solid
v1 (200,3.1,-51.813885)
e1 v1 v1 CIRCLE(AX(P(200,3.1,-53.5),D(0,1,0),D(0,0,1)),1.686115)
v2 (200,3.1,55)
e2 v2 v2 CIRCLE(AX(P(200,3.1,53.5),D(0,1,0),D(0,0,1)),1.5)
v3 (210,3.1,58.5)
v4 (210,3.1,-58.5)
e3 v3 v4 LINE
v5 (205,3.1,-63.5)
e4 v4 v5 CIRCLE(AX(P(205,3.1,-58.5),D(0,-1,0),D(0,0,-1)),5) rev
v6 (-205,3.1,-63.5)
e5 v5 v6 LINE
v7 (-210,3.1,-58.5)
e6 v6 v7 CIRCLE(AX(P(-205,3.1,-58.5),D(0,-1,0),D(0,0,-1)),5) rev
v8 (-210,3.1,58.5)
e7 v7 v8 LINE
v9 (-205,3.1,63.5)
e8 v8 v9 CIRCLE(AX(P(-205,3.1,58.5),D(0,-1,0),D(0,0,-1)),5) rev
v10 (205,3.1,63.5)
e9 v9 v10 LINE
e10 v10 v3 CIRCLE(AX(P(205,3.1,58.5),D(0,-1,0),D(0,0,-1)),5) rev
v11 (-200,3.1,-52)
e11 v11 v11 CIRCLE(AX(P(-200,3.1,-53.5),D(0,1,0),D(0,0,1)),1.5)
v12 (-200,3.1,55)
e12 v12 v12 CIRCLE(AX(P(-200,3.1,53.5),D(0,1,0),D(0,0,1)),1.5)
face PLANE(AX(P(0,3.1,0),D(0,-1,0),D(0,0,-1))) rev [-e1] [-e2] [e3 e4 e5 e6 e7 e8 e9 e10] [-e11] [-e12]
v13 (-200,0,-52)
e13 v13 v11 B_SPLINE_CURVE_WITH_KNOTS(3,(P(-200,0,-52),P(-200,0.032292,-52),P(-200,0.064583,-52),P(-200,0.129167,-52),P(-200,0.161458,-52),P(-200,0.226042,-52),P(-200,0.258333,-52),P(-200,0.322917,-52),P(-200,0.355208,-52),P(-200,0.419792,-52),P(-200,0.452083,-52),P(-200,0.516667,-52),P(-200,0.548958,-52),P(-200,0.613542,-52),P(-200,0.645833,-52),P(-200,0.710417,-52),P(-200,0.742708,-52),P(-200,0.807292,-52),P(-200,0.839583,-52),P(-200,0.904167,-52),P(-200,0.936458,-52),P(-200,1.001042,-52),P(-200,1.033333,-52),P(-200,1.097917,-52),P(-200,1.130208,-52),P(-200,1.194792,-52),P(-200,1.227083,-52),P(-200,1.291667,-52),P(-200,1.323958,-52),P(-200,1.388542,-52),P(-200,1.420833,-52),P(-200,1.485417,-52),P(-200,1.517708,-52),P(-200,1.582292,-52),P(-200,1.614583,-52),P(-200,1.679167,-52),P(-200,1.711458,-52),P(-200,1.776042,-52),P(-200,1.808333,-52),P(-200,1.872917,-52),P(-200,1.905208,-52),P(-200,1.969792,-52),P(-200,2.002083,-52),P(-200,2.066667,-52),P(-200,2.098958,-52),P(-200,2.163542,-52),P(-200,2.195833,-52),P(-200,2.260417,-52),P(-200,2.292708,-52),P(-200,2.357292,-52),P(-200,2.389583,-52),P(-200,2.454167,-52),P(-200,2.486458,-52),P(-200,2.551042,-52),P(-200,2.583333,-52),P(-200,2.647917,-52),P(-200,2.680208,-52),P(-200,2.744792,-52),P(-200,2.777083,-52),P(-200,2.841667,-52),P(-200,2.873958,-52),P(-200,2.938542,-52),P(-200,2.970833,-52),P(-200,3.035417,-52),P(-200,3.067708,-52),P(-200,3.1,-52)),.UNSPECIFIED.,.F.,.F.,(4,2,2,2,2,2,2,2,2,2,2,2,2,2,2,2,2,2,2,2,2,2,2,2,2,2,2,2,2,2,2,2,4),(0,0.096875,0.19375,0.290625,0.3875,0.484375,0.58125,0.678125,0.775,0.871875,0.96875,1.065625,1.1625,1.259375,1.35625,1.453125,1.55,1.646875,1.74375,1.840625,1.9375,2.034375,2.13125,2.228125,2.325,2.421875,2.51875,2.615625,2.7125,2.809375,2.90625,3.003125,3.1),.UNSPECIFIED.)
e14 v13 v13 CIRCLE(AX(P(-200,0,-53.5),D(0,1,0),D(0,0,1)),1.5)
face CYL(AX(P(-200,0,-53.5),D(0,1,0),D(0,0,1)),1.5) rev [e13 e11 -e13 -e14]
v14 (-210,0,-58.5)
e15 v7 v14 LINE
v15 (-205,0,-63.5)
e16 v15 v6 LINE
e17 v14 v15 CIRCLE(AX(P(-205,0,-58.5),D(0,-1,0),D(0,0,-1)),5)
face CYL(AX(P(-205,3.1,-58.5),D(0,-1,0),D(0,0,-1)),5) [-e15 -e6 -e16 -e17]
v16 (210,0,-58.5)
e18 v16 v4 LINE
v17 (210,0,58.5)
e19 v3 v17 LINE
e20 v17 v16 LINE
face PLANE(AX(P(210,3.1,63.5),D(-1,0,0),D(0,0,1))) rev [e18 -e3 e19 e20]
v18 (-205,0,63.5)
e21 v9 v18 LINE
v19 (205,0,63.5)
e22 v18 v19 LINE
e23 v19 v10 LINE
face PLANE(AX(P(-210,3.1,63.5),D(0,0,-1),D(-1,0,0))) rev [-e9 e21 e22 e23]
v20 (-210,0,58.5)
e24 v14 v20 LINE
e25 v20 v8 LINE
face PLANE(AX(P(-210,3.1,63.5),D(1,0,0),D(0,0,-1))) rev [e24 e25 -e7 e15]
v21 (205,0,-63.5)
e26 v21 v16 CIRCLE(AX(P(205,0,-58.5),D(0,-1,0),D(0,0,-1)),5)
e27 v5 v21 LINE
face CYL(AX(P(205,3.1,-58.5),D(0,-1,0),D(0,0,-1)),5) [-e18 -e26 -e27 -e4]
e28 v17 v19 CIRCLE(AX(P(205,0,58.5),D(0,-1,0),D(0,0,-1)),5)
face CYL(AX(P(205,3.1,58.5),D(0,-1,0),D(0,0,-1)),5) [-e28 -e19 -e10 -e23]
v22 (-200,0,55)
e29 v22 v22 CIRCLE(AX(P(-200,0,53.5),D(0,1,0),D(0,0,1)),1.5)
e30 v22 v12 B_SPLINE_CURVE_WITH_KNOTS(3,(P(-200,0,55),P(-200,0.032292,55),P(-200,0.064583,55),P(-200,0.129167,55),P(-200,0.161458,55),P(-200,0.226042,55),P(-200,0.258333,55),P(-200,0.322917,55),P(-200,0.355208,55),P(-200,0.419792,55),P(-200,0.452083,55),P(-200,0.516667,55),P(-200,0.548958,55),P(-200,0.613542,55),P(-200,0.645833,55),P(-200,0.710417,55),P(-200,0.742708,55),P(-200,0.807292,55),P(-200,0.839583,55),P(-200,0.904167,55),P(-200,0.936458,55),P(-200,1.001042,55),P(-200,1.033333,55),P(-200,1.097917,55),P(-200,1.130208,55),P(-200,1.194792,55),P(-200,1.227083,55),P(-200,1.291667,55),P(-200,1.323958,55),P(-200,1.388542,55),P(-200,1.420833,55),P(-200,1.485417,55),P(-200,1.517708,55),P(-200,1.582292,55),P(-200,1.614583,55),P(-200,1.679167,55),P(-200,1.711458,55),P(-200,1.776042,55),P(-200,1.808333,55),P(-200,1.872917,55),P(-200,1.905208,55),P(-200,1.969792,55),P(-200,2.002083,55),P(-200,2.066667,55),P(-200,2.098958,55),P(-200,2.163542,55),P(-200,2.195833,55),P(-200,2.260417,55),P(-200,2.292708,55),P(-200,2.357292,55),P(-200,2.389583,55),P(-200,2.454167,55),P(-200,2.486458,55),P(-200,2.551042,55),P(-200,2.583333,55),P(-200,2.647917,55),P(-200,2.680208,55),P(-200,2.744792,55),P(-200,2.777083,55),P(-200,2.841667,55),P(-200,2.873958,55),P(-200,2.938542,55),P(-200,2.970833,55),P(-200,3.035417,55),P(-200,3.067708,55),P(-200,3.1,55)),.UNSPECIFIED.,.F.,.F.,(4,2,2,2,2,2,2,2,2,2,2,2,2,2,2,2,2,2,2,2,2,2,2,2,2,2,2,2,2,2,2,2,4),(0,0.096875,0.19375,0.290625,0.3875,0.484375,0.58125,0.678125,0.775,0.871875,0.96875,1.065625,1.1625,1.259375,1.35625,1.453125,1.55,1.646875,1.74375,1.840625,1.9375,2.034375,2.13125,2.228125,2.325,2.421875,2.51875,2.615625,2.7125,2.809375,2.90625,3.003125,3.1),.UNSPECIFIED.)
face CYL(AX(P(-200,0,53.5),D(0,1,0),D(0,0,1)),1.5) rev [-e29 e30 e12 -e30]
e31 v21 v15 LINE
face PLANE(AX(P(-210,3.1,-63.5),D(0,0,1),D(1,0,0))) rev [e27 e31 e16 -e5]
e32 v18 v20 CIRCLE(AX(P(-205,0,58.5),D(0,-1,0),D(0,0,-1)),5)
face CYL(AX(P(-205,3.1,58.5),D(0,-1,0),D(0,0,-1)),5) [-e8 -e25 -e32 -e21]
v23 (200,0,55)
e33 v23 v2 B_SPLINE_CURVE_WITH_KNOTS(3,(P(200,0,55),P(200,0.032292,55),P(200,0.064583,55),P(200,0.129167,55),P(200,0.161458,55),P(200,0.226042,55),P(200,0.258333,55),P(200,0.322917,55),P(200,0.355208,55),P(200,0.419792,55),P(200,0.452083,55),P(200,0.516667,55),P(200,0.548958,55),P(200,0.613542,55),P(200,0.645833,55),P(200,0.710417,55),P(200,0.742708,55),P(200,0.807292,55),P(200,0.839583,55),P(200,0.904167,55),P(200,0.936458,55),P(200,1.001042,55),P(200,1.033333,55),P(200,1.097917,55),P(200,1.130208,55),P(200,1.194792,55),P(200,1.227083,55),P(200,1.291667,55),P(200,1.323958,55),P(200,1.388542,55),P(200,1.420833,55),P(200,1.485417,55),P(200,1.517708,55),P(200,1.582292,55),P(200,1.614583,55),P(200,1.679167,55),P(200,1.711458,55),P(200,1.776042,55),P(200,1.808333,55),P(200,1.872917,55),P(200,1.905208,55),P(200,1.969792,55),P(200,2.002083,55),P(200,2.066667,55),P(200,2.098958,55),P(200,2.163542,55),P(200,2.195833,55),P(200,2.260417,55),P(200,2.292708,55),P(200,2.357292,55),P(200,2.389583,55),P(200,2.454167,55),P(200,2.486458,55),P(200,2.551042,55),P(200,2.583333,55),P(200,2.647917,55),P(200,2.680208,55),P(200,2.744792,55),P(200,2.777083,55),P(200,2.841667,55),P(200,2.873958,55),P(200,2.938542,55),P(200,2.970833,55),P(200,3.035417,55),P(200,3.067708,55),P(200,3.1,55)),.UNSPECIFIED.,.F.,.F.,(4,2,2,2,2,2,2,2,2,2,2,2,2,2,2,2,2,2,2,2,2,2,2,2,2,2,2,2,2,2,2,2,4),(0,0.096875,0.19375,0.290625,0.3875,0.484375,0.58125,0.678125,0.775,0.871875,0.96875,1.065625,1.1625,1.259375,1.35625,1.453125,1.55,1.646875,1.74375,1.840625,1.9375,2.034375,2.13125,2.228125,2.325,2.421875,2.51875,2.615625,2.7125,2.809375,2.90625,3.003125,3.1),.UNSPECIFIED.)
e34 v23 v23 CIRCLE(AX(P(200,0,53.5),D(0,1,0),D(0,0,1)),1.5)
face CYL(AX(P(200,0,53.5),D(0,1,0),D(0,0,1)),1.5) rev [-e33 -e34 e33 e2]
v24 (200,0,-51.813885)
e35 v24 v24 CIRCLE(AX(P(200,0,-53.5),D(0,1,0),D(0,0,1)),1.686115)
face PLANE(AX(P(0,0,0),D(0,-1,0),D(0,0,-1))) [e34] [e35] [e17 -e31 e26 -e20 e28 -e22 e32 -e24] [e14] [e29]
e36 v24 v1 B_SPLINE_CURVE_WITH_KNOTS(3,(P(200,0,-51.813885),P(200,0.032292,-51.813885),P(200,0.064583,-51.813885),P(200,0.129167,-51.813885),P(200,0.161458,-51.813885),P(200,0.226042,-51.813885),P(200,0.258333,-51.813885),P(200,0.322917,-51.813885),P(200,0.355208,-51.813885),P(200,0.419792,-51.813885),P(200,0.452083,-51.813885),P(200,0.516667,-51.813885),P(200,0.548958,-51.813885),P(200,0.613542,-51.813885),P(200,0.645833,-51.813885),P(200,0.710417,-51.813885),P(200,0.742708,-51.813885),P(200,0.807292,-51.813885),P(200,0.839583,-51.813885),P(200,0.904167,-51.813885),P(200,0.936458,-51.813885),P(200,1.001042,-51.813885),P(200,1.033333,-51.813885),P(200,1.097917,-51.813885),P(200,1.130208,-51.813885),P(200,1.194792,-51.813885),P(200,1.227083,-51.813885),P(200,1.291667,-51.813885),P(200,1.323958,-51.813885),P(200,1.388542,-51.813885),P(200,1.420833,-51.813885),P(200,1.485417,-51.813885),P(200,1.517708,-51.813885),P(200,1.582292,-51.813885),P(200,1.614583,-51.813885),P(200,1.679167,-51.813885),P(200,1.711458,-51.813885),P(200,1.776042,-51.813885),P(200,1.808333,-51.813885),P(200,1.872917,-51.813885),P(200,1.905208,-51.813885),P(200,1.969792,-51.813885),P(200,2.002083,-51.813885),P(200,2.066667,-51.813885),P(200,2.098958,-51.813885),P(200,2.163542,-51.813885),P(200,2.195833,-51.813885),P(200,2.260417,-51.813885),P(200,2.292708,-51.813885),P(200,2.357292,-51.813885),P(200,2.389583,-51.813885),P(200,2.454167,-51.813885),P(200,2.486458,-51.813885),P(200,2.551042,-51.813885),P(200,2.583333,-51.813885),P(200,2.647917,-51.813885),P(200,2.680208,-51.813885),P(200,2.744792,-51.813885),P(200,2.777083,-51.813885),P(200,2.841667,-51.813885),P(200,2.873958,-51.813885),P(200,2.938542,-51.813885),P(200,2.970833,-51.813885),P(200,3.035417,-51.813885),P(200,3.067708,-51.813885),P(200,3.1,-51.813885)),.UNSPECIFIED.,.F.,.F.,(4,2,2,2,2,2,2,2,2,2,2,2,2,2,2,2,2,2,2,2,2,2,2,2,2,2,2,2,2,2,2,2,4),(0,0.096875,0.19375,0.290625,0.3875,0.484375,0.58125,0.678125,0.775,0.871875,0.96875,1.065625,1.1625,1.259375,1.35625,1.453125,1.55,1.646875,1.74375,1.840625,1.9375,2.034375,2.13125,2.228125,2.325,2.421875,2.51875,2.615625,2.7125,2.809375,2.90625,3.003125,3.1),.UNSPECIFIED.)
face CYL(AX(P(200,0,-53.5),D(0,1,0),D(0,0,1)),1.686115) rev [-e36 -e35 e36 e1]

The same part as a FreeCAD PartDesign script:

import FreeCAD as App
import Part
import Sketcher
from FreeCAD import Vector


def edges_at(feature, points):
    """Names of the edges that pass closest to the given points."""
    edges = feature.Shape.Edges
    near = lambda p: min(range(len(edges)), key=lambda i: edges[i].distToShape(Part.Vertex(*p))[0])
    return sorted({f"Edge{near(p) + 1}" for p in points})

doc = App.newDocument("Part")
body = doc.addObject("PartDesign::Body", "Body")

# Sketch on XZ plane
sketch1 = body.newObject("Sketcher::SketchObject", "Sketch")
sketch1.AttachmentSupport = (doc.getObject("XZ_Plane"), [""])
sketch1.MapMode = "FlatFace"
sketch1.addGeometry([
    Part.LineSegment(Vector(-210, -63.5, 0), Vector(-210, 63.5, 0)),
    Part.LineSegment(Vector(-210, 63.5, 0), Vector(210, 63.5, 0)),
    Part.LineSegment(Vector(210, 63.5, 0), Vector(210, -63.5, 0)),
    Part.LineSegment(Vector(210, -63.5, 0), Vector(-210, -63.5, 0)),
], False)
sketch1.addConstraint([
    Sketcher.Constraint("Coincident", 0, 2, 1, 1),
    Sketcher.Constraint("Coincident", 1, 2, 2, 1),
    Sketcher.Constraint("Coincident", 2, 2, 3, 1),
    Sketcher.Constraint("Coincident", 3, 2, 0, 1),
    Sketcher.Constraint("Vertical", 0),
    Sketcher.Constraint("Horizontal", 1),
    Sketcher.Constraint("Vertical", 2),
    Sketcher.Constraint("Horizontal", 3),
    Sketcher.Constraint("Symmetric", 0, 2, 2, 2, -1, 1),
    Sketcher.Constraint("DistanceX", 1, 1, 1, 2, 420.0),
    Sketcher.Constraint("DistanceY", 0, 1, 0, 2, 127.0),
])
pad1 = body.newObject("PartDesign::Pad", "Pad")
pad1.Profile = sketch1
pad1.Length = 3.1
pad1.Reversed = True
doc.recompute()

fillet = body.newObject("PartDesign::Fillet", "Fillet")
fillet.Base = (pad1, edges_at(pad1, [
    (210, 1.55, 63.5),
    (-210, 1.55, 63.5),
    (-210, 1.55, -63.5),
    (210, 1.55, -63.5),
]))
fillet.Radius = 5

# Sketch on XZ plane
sketch2 = body.newObject("Sketcher::SketchObject", "Sketch001")
sketch2.AttachmentSupport = (doc.getObject("XZ_Plane"), [""])
sketch2.MapMode = "FlatFace"
sketch2.AttachmentOffset = App.Placement(Vector(0, 0, -3.1), App.Rotation())
sketch2.addGeometry([
    Part.Circle(Vector(-200, -53.5, 0), Vector(0, 0, 1), 1.5),
    Part.Circle(Vector(-200, 53.5, 0), Vector(0, 0, 1), 1.5),
    Part.Circle(Vector(200, -53.5, 0), Vector(0, 0, 1), 1.686115),
    Part.Circle(Vector(200, 53.5, 0), Vector(0, 0, 1), 1.5),
], False)
sketch2.addConstraint([
    Sketcher.Constraint("Equal", 0, 1),
    Sketcher.Constraint("Equal", 1, 3),
    Sketcher.Constraint("Symmetric", 1, 3, 2, 3, -1, 1),
    Sketcher.Constraint("Symmetric", 0, 3, 3, 3, -1, 1),
    Sketcher.Constraint("Symmetric", 0, 3, 2, 3, -2),
    Sketcher.Constraint("Diameter", 0, 3.0),
    Sketcher.Constraint("DistanceX", 0, 3, -1, 1, 200.0),
    Sketcher.Constraint("DistanceY", 0, 3, 1, 3, 107.0),
    Sketcher.Constraint("Diameter", 2, 3.37223),
])
pocket1 = body.newObject("PartDesign::Pocket", "Pocket")
pocket1.Profile = sketch2
pocket1.Length = 3.1
pocket1.Reversed = True

doc.recompute()
